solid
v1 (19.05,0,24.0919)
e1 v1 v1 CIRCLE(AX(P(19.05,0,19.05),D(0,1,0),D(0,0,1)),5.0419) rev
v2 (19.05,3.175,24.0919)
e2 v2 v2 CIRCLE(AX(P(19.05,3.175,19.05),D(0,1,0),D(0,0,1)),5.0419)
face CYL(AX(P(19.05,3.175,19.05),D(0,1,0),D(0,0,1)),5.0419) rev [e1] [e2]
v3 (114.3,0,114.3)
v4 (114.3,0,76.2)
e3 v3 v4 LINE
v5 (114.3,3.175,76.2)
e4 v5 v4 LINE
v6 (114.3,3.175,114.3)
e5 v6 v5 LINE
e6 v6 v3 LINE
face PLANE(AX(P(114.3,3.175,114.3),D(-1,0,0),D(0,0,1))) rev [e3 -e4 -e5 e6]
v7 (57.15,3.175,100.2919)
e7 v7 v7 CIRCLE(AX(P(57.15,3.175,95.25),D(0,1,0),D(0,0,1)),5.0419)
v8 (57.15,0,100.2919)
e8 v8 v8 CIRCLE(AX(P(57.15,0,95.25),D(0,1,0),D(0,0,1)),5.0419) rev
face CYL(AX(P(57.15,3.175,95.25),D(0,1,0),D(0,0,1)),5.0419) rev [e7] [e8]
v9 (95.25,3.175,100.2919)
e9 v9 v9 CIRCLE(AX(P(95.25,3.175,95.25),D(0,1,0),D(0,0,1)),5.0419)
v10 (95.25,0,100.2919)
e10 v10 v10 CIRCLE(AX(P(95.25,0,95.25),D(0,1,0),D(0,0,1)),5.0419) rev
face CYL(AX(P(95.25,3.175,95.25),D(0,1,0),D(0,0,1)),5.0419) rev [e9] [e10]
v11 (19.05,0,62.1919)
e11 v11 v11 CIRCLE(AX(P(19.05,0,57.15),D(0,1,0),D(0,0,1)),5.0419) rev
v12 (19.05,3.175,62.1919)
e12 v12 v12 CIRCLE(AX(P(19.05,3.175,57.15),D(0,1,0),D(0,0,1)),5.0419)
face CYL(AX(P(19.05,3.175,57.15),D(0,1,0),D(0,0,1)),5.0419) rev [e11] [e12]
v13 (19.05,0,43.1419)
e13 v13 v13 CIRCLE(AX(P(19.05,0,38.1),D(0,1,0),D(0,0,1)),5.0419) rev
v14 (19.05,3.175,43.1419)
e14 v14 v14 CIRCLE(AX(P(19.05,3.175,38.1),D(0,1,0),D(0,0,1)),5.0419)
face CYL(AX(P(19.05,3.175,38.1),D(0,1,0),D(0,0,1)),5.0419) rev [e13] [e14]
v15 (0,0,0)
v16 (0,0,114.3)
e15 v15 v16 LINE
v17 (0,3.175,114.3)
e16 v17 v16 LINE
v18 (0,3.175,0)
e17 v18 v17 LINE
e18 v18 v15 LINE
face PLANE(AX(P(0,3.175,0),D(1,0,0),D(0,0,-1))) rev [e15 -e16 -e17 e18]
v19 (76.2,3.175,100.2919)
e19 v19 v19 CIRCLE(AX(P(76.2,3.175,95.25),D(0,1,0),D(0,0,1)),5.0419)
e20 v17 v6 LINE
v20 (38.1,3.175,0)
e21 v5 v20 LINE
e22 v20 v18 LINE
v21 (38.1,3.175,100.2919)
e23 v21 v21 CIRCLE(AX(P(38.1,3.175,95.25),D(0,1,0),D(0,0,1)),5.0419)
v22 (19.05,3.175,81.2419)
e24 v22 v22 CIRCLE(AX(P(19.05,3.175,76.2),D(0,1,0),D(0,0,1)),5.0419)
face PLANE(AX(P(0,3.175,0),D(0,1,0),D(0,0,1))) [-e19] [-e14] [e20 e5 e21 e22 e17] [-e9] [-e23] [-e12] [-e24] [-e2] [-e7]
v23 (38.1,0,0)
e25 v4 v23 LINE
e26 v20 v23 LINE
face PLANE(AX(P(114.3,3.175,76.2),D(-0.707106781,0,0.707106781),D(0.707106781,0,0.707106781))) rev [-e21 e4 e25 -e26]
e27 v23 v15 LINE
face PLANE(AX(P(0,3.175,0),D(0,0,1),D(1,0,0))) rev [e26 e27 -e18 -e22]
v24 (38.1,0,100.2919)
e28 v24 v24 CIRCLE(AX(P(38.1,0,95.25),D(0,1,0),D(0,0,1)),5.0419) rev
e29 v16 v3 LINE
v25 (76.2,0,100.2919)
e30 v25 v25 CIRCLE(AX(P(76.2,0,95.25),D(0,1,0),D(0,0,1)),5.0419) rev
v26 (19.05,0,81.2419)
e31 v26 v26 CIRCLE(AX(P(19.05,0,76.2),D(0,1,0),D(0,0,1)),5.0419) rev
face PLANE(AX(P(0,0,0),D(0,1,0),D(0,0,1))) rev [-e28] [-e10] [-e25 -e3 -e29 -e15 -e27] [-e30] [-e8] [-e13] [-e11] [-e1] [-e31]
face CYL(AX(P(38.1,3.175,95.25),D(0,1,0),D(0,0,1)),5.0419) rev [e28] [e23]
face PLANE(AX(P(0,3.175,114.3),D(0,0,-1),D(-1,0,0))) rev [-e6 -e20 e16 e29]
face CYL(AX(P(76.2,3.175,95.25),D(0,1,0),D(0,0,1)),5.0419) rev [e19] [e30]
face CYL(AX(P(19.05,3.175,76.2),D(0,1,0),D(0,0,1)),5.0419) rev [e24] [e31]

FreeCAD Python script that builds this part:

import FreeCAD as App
import Part
import Sketcher
from FreeCAD import Vector
Q = App.Units.Quantity


def add_polygon(sketch, points):
    """Adds a closed chain of lines whose ends are joined by coincident constraints."""
    first, n = sketch.GeometryCount, len(points)
    for a, b in zip(points, points[1:] + points[:1]):
        sketch.addGeometry(Part.LineSegment(App.Vector(*a, 0), App.Vector(*b, 0)), False)
    for i in range(n):
        sketch.addConstraint(Sketcher.Constraint("Coincident", first + i, 2, first + (i + 1) % n, 1))

doc = App.newDocument("Part")
body = doc.addObject("PartDesign::Body", "Body")

# Sketch on XZ plane
sketch1 = doc.addObject("Sketcher::SketchObject", "Sketch")
body.addObject(sketch1)
sketch1.AttachmentSupport = (doc.XZ_Plane, [""])
sketch1.MapMode = "FlatFace"
add_polygon(sketch1, [(38, 0), (0, 0), (0, 114), (114, 114), (114, 76)])  # lines 0-4
sketch1.addConstraint([
    Sketcher.Constraint("Horizontal", 0),
    Sketcher.Constraint("Vertical", 1),
    Sketcher.Constraint("Horizontal", 2),
    Sketcher.Constraint("Vertical", 3),
    Sketcher.Constraint("Coincident", 0, 2, -1, 1),
    Sketcher.Constraint("Equal", 2, 1),
    Sketcher.Constraint("Equal", 0, 3),
    Sketcher.Constraint("DistanceX", 0, 2, 0, 1, Q("1.5 in")),
    Sketcher.Constraint("DistanceX", 2, 1, 2, 2, Q("4.5 in")),
])
pad1 = doc.addObject("PartDesign::Pad", "Pad")
body.addObject(pad1)
pad1.Profile = sketch1
pad1.Length = Q("0.125 in")
pad1.Reversed = True

# Sketch on XZ plane
sketch2 = doc.addObject("Sketcher::SketchObject", "Sketch001")
body.addObject(sketch2)
sketch2.AttachmentSupport = (doc.XZ_Plane, [""])
sketch2.MapMode = "FlatFace"
sketch2.AttachmentOffset = App.Placement(Vector(0, 0, -0.125 * 25.4), App.Rotation())
sketch2.addGeometry([
    Part.Circle(Vector(19, 19, 0), Vector(0, 0, 1), 5),  # 0
    Part.Circle(Vector(19, 38, 0), Vector(0, 0, 1), 5),  # 1
    Part.Circle(Vector(19, 57, 0), Vector(0, 0, 1), 5),  # 2
    Part.Circle(Vector(19, 76, 0), Vector(0, 0, 1), 5),  # 3
    Part.Circle(Vector(38, 95, 0), Vector(0, 0, 1), 5),  # 4
    Part.Circle(Vector(57, 95, 0), Vector(0, 0, 1), 5),  # 5
    Part.Circle(Vector(76, 95, 0), Vector(0, 0, 1), 5),  # 6
    Part.Circle(Vector(95, 95, 0), Vector(0, 0, 1), 5),  # 7
], False)
sketch2.addConstraint([
    Sketcher.Constraint("Equal", 0, 1),
    Sketcher.Constraint("Equal", 1, 2),
    Sketcher.Constraint("Equal", 2, 3),
    Sketcher.Constraint("Equal", 3, 4),
    Sketcher.Constraint("Equal", 4, 5),
    Sketcher.Constraint("Equal", 5, 6),
    Sketcher.Constraint("Equal", 6, 7),
    Sketcher.Constraint("Horizontal", 4, 3, 5, 3),
    Sketcher.Constraint("Horizontal", 5, 3, 6, 3),
    Sketcher.Constraint("Horizontal", 6, 3, 7, 3),
    Sketcher.Constraint("Vertical", 0, 3, 1, 3),
    Sketcher.Constraint("Vertical", 1, 3, 2, 3),
    Sketcher.Constraint("Vertical", 2, 3, 3, 3),
    Sketcher.Constraint("Diameter", 0, Q("0.397 in")),
    Sketcher.Constraint("DistanceY", -1, 1, 3, 3, Q("3 in")),
    Sketcher.Constraint("DistanceX", -1, 1, 6, 3, Q("3 in")),
    Sketcher.Constraint("DistanceY", 0, 3, 4, 3, Q("3 in")),
    Sketcher.Constraint("DistanceX", 3, 3, 7, 3, Q("3 in")),
    Sketcher.Constraint("DistanceY", -1, 1, 1, 3, Q("1.5 in")),
    Sketcher.Constraint("DistanceX", -1, 1, 4, 3, Q("1.5 in")),
    Sketcher.Constraint("DistanceY", 0, 3, 2, 3, Q("1.5 in")),
    Sketcher.Constraint("DistanceX", 3, 3, 5, 3, Q("1.5 in")),
    Sketcher.Constraint("DistanceX", -1, 1, 0, 3, Q("0.75 in")),
    Sketcher.Constraint("DistanceY", -1, 1, 0, 3, Q("0.75 in")),
])
doc.recompute()
hole = doc.addObject("PartDesign::Hole", "Hole")
body.addObject(hole)
hole.Profile = sketch2
hole.ThreadType = "None"
hole.Diameter = Q("0.397 in")
hole.DepthType = "Dimension"
hole.Depth = Q("0.125 in")
hole.DrillPoint = "Angled"
hole.DrillPointAngle = 118
hole.Reversed = True

doc.recompute()
